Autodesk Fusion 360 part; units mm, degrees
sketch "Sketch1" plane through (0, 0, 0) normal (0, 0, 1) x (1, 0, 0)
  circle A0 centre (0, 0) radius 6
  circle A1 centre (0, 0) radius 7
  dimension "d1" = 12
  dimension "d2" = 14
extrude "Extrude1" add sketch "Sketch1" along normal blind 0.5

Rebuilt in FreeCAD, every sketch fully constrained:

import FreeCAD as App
import Part
import Sketcher
from FreeCAD import Vector

doc = App.newDocument("Part")
body = doc.addObject("PartDesign::Body", "Body")

# Sketch on XY plane
sketch1 = body.newObject("Sketcher::SketchObject", "Sketch")
sketch1.AttachmentSupport = (doc.getObject("XY_Plane"), [""])
sketch1.MapMode = "FlatFace"
sketch1.addGeometry([
    Part.Circle(Vector(0, 0, 0), Vector(0, 0, 1), 7),
    Part.Circle(Vector(0, 0, 0), Vector(0, 0, 1), 6),
], False)
sketch1.addConstraint([
    Sketcher.Constraint("Coincident", 0, 3, -1, 1),
    Sketcher.Constraint("Coincident", 1, 3, -1, 1),
    Sketcher.Constraint("Diameter", 0, 14.0),
    Sketcher.Constraint("Diameter", 1, 12.0),
])
pad1 = body.newObject("PartDesign::Pad", "Pad")
pad1.Profile = sketch1
pad1.Length = 0.5

doc.recompute()
